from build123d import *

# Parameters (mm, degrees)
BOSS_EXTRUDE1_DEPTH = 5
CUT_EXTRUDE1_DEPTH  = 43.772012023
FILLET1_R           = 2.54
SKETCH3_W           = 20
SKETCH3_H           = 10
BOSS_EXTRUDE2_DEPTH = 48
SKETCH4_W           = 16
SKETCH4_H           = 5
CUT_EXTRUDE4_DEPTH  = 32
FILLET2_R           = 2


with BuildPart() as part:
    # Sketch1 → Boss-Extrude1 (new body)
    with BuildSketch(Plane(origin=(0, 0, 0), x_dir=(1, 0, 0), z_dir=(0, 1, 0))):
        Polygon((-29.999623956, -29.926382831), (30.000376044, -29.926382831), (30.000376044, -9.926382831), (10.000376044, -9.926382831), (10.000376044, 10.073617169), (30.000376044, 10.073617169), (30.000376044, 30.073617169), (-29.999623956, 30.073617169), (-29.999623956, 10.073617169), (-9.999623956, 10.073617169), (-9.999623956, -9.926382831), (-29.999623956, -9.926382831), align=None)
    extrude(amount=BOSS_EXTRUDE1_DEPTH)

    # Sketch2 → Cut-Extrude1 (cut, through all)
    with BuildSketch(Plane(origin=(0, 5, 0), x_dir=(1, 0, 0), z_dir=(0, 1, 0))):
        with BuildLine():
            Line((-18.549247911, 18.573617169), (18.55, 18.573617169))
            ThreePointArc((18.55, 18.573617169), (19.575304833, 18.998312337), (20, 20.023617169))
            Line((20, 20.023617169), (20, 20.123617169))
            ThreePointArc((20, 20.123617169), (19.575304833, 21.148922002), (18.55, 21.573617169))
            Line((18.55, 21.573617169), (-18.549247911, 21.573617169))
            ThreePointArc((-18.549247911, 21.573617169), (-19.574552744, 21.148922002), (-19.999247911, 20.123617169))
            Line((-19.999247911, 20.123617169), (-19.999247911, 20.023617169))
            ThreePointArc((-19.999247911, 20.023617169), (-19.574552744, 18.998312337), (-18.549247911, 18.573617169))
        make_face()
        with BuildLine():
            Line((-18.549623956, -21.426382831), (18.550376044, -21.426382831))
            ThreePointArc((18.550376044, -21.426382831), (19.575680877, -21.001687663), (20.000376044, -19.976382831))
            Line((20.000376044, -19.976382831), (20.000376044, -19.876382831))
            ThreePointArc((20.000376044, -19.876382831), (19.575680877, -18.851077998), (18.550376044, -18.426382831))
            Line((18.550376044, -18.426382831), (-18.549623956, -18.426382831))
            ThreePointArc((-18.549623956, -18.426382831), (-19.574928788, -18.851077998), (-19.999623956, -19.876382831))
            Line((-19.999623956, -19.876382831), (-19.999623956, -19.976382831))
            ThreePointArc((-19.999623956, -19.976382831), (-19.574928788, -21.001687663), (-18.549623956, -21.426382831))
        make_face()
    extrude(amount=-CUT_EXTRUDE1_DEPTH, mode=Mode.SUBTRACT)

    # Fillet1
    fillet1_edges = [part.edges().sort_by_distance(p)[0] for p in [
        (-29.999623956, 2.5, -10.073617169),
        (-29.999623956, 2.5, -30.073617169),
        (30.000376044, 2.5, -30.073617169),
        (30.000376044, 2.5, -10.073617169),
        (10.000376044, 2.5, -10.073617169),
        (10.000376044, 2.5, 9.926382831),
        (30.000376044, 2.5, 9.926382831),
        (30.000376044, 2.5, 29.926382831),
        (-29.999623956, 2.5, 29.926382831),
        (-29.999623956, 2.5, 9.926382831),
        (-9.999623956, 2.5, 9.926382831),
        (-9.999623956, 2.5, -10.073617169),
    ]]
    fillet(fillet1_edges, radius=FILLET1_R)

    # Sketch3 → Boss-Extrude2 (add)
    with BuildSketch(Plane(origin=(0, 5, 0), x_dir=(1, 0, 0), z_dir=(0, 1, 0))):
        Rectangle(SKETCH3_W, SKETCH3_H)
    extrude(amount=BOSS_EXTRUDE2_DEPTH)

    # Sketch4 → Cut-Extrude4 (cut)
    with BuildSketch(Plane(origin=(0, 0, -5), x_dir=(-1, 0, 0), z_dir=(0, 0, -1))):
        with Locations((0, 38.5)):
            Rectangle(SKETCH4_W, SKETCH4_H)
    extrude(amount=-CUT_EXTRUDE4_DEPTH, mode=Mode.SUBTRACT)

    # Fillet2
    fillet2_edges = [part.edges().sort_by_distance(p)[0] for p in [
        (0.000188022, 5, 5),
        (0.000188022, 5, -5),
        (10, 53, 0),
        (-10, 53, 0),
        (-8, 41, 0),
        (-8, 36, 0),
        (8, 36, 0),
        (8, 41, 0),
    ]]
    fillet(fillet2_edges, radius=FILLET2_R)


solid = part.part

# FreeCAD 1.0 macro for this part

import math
import FreeCAD as App
import Part
import Sketcher
Q = App.Units.Quantity


def edges_at(feature, points):
    """Names of the edges that pass closest to the given points."""
    edges = feature.Shape.Edges
    near = lambda p: min(range(len(edges)), key=lambda i: edges[i].distToShape(Part.Vertex(*p))[0])
    return sorted({f"Edge{near(p) + 1}" for p in points})


def add_polygon(sketch, points):
    """Adds a closed chain of lines whose ends are joined by coincident constraints."""
    first, n = sketch.GeometryCount, len(points)
    for a, b in zip(points, points[1:] + points[:1]):
        sketch.addGeometry(Part.LineSegment(App.Vector(*a, 0), App.Vector(*b, 0)), False)
    for i in range(n):
        sketch.addConstraint(Sketcher.Constraint("Coincident", first + i, 2, first + (i + 1) % n, 1))

doc = App.newDocument("Part")
body = doc.addObject("PartDesign::Body", "Body")

# Sketch on XZ plane
sketch1 = body.newObject("Sketcher::SketchObject", "Sketch")
sketch1.AttachmentSupport = (doc.getObject("XZ_Plane"), [""])
sketch1.MapMode = "FlatFace"
add_polygon(sketch1, [(-30, 30), (30, 30), (30, 10), (10, 10), (10, -10), (30, -10), (30, -30), (-30, -30), (-30, -10), (-10, -10), (-10, 10), (-30, 10)])  # lines 0-11
sketch1.addConstraint(Sketcher.Constraint("Horizontal", 0))
sketch1.addConstraint(Sketcher.Constraint("Vertical", 1))
sketch1.addConstraint(Sketcher.Constraint("Horizontal", 2))
sketch1.addConstraint(Sketcher.Constraint("Vertical", 3))
sketch1.addConstraint(Sketcher.Constraint("Horizontal", 4))
sketch1.addConstraint(Sketcher.Constraint("Vertical", 5))
sketch1.addConstraint(Sketcher.Constraint("Horizontal", 6))
sketch1.addConstraint(Sketcher.Constraint("Vertical", 7))
sketch1.addConstraint(Sketcher.Constraint("Horizontal", 8))
sketch1.addConstraint(Sketcher.Constraint("Vertical", 9))
sketch1.addConstraint(Sketcher.Constraint("Horizontal", 10))
sketch1.addConstraint(Sketcher.Constraint("Vertical", 11))
sketch1.addConstraint(Sketcher.Constraint("Horizontal", 4, 2, 7, 2))
sketch1.addConstraint(Sketcher.Constraint("Horizontal", 2, 2, 9, 2))
sketch1.addConstraint(Sketcher.Constraint("Vertical", 1, 2, 4, 2))
sketch1.addConstraint(Sketcher.Constraint("Vertical", 7, 2, 10, 2))
sketch1.addConstraint(Sketcher.Constraint("Equal", 4, 8))
sketch1.addConstraint(Sketcher.Constraint("Equal", 10, 1))
sketch1.addConstraint(Sketcher.Constraint("Equal", 1, 3))
sketch1.addConstraint(Sketcher.Constraint("Equal", 3, 5))
sketch1.addConstraint(Sketcher.Constraint("DistanceX", 0, 1, 0, 2, Q("60 mm")))
sketch1.addConstraint(Sketcher.Constraint("DistanceX", 2, 2, 2, 1, Q("20 mm")))
sketch1.addConstraint(Sketcher.Constraint("DistanceX", -1, 1, 0, 2, Q("30.000376 mm")))
sketch1.addConstraint(Sketcher.Constraint("DistanceY", -1, 1, 0, 2, Q("29.926383 mm")))
pad1 = body.newObject("PartDesign::Pad", "Pad")
pad1.Profile = sketch1
pad1.Length = 5
pad1.Reversed = True

# Sketch on XZ plane
sketch2 = body.newObject("Sketcher::SketchObject", "Sketch001")
sketch2.AttachmentSupport = (doc.getObject("XZ_Plane"), [""])
sketch2.MapMode = "FlatFace"
sketch2.AttachmentOffset = App.Placement(App.Vector(0, 0, -5), App.Rotation())
sketch2.addGeometry(Part.LineSegment(App.Vector(-18.55, -18.57, 0), App.Vector(18.55, -18.57, 0)), False)
sketch2.addGeometry(Part.ArcOfCircle(Part.Circle(App.Vector(18.55, -20.02, 0), App.Vector(0, 0, 1), 1.45), math.radians(0), math.radians(90)), False)
sketch2.addGeometry(Part.LineSegment(App.Vector(20, -20.02, 0), App.Vector(20, -20.12, 0)), False)
sketch2.addGeometry(Part.ArcOfCircle(Part.Circle(App.Vector(18.55, -20.12, 0), App.Vector(0, 0, 1), 1.45), math.radians(-90), math.radians(0)), False)
sketch2.addGeometry(Part.LineSegment(App.Vector(18.55, -21.57, 0), App.Vector(-18.55, -21.57, 0)), False)
sketch2.addGeometry(Part.ArcOfCircle(Part.Circle(App.Vector(-18.55, -20.12, 0), App.Vector(0, 0, 1), 1.45), math.radians(180), math.radians(270)), False)
sketch2.addGeometry(Part.LineSegment(App.Vector(-20, -20.12, 0), App.Vector(-20, -20.02, 0)), False)
sketch2.addGeometry(Part.ArcOfCircle(Part.Circle(App.Vector(-18.55, -20.02, 0), App.Vector(0, 0, 1), 1.45), math.radians(90), math.radians(180)), False)
sketch2.addGeometry(Part.LineSegment(App.Vector(-18.55, 21.43, 0), App.Vector(18.55, 21.43, 0)), False)
sketch2.addGeometry(Part.ArcOfCircle(Part.Circle(App.Vector(18.55, 19.98, 0), App.Vector(0, 0, 1), 1.45), math.radians(0), math.radians(90)), False)
sketch2.addGeometry(Part.LineSegment(App.Vector(20, 19.98, 0), App.Vector(20, 19.88, 0)), False)
sketch2.addGeometry(Part.ArcOfCircle(Part.Circle(App.Vector(18.55, 19.88, 0), App.Vector(0, 0, 1), 1.45), math.radians(-90), math.radians(0)), False)
sketch2.addGeometry(Part.LineSegment(App.Vector(18.55, 18.43, 0), App.Vector(-18.55, 18.43, 0)), False)
sketch2.addGeometry(Part.ArcOfCircle(Part.Circle(App.Vector(-18.55, 19.88, 0), App.Vector(0, 0, 1), 1.45), math.radians(-180), math.radians(-90)), False)
sketch2.addGeometry(Part.LineSegment(App.Vector(-20, 19.88, 0), App.Vector(-20, 19.98, 0)), False)
sketch2.addGeometry(Part.ArcOfCircle(Part.Circle(App.Vector(-18.55, 19.98, 0), App.Vector(0, 0, 1), 1.45), math.radians(90), math.radians(180)), False)
sketch2.addConstraint(Sketcher.Constraint("Tangent", 0, 2, 1, 2))
sketch2.addConstraint(Sketcher.Constraint("Tangent", 1, 1, 2, 1))
sketch2.addConstraint(Sketcher.Constraint("Tangent", 2, 2, 3, 2))
sketch2.addConstraint(Sketcher.Constraint("Tangent", 3, 1, 4, 1))
sketch2.addConstraint(Sketcher.Constraint("Tangent", 4, 2, 5, 2))
sketch2.addConstraint(Sketcher.Constraint("Tangent", 5, 1, 6, 1))
sketch2.addConstraint(Sketcher.Constraint("Tangent", 6, 2, 7, 2))
sketch2.addConstraint(Sketcher.Constraint("Tangent", 7, 1, 0, 1))
sketch2.addConstraint(Sketcher.Constraint("Tangent", 8, 2, 9, 2))
sketch2.addConstraint(Sketcher.Constraint("Tangent", 9, 1, 10, 1))
sketch2.addConstraint(Sketcher.Constraint("Tangent", 10, 2, 11, 2))
sketch2.addConstraint(Sketcher.Constraint("Tangent", 11, 1, 12, 1))
sketch2.addConstraint(Sketcher.Constraint("Tangent", 12, 2, 13, 2))
sketch2.addConstraint(Sketcher.Constraint("Tangent", 13, 1, 14, 1))
sketch2.addConstraint(Sketcher.Constraint("Tangent", 14, 2, 15, 2))
sketch2.addConstraint(Sketcher.Constraint("Tangent", 15, 1, 8, 1))
sketch2.addConstraint(Sketcher.Constraint("Horizontal", 0))
sketch2.addConstraint(Sketcher.Constraint("Vertical", 2))
sketch2.addConstraint(Sketcher.Constraint("Horizontal", 4))
sketch2.addConstraint(Sketcher.Constraint("Vertical", 6))
sketch2.addConstraint(Sketcher.Constraint("Horizontal", 8))
sketch2.addConstraint(Sketcher.Constraint("Vertical", 10))
sketch2.addConstraint(Sketcher.Constraint("Horizontal", 12))
sketch2.addConstraint(Sketcher.Constraint("Vertical", 14))
sketch2.addConstraint(Sketcher.Constraint("Equal", 1, 3))
sketch2.addConstraint(Sketcher.Constraint("Equal", 3, 5))
sketch2.addConstraint(Sketcher.Constraint("Equal", 5, 7))
sketch2.addConstraint(Sketcher.Constraint("Equal", 7, 9))
sketch2.addConstraint(Sketcher.Constraint("Equal", 9, 11))
sketch2.addConstraint(Sketcher.Constraint("Equal", 11, 13))
sketch2.addConstraint(Sketcher.Constraint("Equal", 13, 15))
sketch2.addConstraint(Sketcher.Constraint("Equal", 6, 10))
sketch2.addConstraint(Sketcher.Constraint("Radius", 1, Q("1.45 mm")))
sketch2.addConstraint(Sketcher.Constraint("DistanceX", 8, 1, 8, 2, Q("37.1 mm")))
sketch2.addConstraint(Sketcher.Constraint("DistanceY", 2, 2, 2, 1, Q("0.1 mm")))
sketch2.addConstraint(Sketcher.Constraint("DistanceX", -1, 1, 1, 1, Q("20 mm")))
sketch2.addConstraint(Sketcher.Constraint("DistanceY", 1, 3, 9, 3, Q("40 mm")))
sketch2.addConstraint(Sketcher.Constraint("DistanceX", 0, 1, 0, 2, Q("37.099248 mm")))
sketch2.addConstraint(Sketcher.Constraint("DistanceY", 1, 3, -1, 1, Q("20.023617 mm")))
sketch2.addConstraint(Sketcher.Constraint("DistanceX", -1, 1, 9, 3, Q("18.550376 mm")))
pocket1 = body.newObject("PartDesign::Pocket", "Pocket")
pocket1.Profile = sketch2
pocket1.Type = "ThroughAll"
pocket1.Reversed = True
doc.recompute()

fillet = body.newObject("PartDesign::Fillet", "Fillet")
fillet.Base = (pocket1, edges_at(pocket1, [
    (-30, 2.5, -10.074),
    (-30, 2.5, -30.074),
    (30, 2.5, -30.074),
    (30, 2.5, -10.074),
    (10, 2.5, -10.074),
    (10, 2.5, 9.926),
    (30, 2.5, 9.926),
    (30, 2.5, 29.926),
    (-30, 2.5, 29.926),
    (-30, 2.5, 9.926),
    (-10, 2.5, 9.926),
    (-10, 2.5, -10.074),
]))
fillet.Radius = 2.54

# Sketch on XZ plane
sketch3 = body.newObject("Sketcher::SketchObject", "Sketch002")
sketch3.AttachmentSupport = (doc.getObject("XZ_Plane"), [""])
sketch3.MapMode = "FlatFace"
sketch3.AttachmentOffset = App.Placement(App.Vector(0, 0, -5), App.Rotation())
add_polygon(sketch3, [(-10, -5), (-10, 5), (10, 5), (10, -5)])  # lines 0-3
sketch3.addConstraint(Sketcher.Constraint("Vertical", 0))
sketch3.addConstraint(Sketcher.Constraint("Horizontal", 1))
sketch3.addConstraint(Sketcher.Constraint("Vertical", 2))
sketch3.addConstraint(Sketcher.Constraint("Horizontal", 3))
sketch3.addConstraint(Sketcher.Constraint("Symmetric", 0, 2, 2, 2, -1, 1))
sketch3.addConstraint(Sketcher.Constraint("DistanceX", 1, 1, 1, 2, Q("20 mm")))
sketch3.addConstraint(Sketcher.Constraint("DistanceY", 0, 1, 0, 2, Q("10 mm")))
pad2 = body.newObject("PartDesign::Pad", "Pad001")
pad2.Profile = sketch3
pad2.Length = 48
pad2.Reversed = True

# Sketch on XY plane
sketch4 = body.newObject("Sketcher::SketchObject", "Sketch003")
sketch4.AttachmentSupport = (doc.getObject("XY_Plane"), [""])
sketch4.MapMode = "FlatFace"
sketch4.AttachmentOffset = App.Placement(App.Vector(0, 0, -5), App.Rotation())
add_polygon(sketch4, [(8, 41), (8, 36), (-8, 36), (-8, 41)])  # lines 0-3
sketch4.addConstraint(Sketcher.Constraint("Vertical", 0))
sketch4.addConstraint(Sketcher.Constraint("Horizontal", 1))
sketch4.addConstraint(Sketcher.Constraint("Vertical", 2))
sketch4.addConstraint(Sketcher.Constraint("Horizontal", 3))
sketch4.addConstraint(Sketcher.Constraint("DistanceX", 1, 2, 1, 1, Q("16 mm")))
sketch4.addConstraint(Sketcher.Constraint("DistanceY", 0, 2, 0, 1, Q("5 mm")))
sketch4.addConstraint(Sketcher.Constraint("DistanceX", -1, 1, 0, 2, Q("8 mm")))
sketch4.addConstraint(Sketcher.Constraint("DistanceY", -1, 1, 0, 2, Q("36 mm")))
pocket2 = body.newObject("PartDesign::Pocket", "Pocket001")
pocket2.Profile = sketch4
pocket2.Length = 32
pocket2.Reversed = True
doc.recompute()

fillet2 = body.newObject("PartDesign::Fillet", "Fillet001")
fillet2.Base = (pocket2, edges_at(pocket2, [
    (0, 5, 5),
    (0, 5, -5),
    (10, 53, 0),
    (-10, 53, 0),
    (-8, 41, 0),
    (-8, 36, 0),
    (8, 36, 0),
    (8, 41, 0),
]))
fillet2.Radius = 2

doc.recompute()
